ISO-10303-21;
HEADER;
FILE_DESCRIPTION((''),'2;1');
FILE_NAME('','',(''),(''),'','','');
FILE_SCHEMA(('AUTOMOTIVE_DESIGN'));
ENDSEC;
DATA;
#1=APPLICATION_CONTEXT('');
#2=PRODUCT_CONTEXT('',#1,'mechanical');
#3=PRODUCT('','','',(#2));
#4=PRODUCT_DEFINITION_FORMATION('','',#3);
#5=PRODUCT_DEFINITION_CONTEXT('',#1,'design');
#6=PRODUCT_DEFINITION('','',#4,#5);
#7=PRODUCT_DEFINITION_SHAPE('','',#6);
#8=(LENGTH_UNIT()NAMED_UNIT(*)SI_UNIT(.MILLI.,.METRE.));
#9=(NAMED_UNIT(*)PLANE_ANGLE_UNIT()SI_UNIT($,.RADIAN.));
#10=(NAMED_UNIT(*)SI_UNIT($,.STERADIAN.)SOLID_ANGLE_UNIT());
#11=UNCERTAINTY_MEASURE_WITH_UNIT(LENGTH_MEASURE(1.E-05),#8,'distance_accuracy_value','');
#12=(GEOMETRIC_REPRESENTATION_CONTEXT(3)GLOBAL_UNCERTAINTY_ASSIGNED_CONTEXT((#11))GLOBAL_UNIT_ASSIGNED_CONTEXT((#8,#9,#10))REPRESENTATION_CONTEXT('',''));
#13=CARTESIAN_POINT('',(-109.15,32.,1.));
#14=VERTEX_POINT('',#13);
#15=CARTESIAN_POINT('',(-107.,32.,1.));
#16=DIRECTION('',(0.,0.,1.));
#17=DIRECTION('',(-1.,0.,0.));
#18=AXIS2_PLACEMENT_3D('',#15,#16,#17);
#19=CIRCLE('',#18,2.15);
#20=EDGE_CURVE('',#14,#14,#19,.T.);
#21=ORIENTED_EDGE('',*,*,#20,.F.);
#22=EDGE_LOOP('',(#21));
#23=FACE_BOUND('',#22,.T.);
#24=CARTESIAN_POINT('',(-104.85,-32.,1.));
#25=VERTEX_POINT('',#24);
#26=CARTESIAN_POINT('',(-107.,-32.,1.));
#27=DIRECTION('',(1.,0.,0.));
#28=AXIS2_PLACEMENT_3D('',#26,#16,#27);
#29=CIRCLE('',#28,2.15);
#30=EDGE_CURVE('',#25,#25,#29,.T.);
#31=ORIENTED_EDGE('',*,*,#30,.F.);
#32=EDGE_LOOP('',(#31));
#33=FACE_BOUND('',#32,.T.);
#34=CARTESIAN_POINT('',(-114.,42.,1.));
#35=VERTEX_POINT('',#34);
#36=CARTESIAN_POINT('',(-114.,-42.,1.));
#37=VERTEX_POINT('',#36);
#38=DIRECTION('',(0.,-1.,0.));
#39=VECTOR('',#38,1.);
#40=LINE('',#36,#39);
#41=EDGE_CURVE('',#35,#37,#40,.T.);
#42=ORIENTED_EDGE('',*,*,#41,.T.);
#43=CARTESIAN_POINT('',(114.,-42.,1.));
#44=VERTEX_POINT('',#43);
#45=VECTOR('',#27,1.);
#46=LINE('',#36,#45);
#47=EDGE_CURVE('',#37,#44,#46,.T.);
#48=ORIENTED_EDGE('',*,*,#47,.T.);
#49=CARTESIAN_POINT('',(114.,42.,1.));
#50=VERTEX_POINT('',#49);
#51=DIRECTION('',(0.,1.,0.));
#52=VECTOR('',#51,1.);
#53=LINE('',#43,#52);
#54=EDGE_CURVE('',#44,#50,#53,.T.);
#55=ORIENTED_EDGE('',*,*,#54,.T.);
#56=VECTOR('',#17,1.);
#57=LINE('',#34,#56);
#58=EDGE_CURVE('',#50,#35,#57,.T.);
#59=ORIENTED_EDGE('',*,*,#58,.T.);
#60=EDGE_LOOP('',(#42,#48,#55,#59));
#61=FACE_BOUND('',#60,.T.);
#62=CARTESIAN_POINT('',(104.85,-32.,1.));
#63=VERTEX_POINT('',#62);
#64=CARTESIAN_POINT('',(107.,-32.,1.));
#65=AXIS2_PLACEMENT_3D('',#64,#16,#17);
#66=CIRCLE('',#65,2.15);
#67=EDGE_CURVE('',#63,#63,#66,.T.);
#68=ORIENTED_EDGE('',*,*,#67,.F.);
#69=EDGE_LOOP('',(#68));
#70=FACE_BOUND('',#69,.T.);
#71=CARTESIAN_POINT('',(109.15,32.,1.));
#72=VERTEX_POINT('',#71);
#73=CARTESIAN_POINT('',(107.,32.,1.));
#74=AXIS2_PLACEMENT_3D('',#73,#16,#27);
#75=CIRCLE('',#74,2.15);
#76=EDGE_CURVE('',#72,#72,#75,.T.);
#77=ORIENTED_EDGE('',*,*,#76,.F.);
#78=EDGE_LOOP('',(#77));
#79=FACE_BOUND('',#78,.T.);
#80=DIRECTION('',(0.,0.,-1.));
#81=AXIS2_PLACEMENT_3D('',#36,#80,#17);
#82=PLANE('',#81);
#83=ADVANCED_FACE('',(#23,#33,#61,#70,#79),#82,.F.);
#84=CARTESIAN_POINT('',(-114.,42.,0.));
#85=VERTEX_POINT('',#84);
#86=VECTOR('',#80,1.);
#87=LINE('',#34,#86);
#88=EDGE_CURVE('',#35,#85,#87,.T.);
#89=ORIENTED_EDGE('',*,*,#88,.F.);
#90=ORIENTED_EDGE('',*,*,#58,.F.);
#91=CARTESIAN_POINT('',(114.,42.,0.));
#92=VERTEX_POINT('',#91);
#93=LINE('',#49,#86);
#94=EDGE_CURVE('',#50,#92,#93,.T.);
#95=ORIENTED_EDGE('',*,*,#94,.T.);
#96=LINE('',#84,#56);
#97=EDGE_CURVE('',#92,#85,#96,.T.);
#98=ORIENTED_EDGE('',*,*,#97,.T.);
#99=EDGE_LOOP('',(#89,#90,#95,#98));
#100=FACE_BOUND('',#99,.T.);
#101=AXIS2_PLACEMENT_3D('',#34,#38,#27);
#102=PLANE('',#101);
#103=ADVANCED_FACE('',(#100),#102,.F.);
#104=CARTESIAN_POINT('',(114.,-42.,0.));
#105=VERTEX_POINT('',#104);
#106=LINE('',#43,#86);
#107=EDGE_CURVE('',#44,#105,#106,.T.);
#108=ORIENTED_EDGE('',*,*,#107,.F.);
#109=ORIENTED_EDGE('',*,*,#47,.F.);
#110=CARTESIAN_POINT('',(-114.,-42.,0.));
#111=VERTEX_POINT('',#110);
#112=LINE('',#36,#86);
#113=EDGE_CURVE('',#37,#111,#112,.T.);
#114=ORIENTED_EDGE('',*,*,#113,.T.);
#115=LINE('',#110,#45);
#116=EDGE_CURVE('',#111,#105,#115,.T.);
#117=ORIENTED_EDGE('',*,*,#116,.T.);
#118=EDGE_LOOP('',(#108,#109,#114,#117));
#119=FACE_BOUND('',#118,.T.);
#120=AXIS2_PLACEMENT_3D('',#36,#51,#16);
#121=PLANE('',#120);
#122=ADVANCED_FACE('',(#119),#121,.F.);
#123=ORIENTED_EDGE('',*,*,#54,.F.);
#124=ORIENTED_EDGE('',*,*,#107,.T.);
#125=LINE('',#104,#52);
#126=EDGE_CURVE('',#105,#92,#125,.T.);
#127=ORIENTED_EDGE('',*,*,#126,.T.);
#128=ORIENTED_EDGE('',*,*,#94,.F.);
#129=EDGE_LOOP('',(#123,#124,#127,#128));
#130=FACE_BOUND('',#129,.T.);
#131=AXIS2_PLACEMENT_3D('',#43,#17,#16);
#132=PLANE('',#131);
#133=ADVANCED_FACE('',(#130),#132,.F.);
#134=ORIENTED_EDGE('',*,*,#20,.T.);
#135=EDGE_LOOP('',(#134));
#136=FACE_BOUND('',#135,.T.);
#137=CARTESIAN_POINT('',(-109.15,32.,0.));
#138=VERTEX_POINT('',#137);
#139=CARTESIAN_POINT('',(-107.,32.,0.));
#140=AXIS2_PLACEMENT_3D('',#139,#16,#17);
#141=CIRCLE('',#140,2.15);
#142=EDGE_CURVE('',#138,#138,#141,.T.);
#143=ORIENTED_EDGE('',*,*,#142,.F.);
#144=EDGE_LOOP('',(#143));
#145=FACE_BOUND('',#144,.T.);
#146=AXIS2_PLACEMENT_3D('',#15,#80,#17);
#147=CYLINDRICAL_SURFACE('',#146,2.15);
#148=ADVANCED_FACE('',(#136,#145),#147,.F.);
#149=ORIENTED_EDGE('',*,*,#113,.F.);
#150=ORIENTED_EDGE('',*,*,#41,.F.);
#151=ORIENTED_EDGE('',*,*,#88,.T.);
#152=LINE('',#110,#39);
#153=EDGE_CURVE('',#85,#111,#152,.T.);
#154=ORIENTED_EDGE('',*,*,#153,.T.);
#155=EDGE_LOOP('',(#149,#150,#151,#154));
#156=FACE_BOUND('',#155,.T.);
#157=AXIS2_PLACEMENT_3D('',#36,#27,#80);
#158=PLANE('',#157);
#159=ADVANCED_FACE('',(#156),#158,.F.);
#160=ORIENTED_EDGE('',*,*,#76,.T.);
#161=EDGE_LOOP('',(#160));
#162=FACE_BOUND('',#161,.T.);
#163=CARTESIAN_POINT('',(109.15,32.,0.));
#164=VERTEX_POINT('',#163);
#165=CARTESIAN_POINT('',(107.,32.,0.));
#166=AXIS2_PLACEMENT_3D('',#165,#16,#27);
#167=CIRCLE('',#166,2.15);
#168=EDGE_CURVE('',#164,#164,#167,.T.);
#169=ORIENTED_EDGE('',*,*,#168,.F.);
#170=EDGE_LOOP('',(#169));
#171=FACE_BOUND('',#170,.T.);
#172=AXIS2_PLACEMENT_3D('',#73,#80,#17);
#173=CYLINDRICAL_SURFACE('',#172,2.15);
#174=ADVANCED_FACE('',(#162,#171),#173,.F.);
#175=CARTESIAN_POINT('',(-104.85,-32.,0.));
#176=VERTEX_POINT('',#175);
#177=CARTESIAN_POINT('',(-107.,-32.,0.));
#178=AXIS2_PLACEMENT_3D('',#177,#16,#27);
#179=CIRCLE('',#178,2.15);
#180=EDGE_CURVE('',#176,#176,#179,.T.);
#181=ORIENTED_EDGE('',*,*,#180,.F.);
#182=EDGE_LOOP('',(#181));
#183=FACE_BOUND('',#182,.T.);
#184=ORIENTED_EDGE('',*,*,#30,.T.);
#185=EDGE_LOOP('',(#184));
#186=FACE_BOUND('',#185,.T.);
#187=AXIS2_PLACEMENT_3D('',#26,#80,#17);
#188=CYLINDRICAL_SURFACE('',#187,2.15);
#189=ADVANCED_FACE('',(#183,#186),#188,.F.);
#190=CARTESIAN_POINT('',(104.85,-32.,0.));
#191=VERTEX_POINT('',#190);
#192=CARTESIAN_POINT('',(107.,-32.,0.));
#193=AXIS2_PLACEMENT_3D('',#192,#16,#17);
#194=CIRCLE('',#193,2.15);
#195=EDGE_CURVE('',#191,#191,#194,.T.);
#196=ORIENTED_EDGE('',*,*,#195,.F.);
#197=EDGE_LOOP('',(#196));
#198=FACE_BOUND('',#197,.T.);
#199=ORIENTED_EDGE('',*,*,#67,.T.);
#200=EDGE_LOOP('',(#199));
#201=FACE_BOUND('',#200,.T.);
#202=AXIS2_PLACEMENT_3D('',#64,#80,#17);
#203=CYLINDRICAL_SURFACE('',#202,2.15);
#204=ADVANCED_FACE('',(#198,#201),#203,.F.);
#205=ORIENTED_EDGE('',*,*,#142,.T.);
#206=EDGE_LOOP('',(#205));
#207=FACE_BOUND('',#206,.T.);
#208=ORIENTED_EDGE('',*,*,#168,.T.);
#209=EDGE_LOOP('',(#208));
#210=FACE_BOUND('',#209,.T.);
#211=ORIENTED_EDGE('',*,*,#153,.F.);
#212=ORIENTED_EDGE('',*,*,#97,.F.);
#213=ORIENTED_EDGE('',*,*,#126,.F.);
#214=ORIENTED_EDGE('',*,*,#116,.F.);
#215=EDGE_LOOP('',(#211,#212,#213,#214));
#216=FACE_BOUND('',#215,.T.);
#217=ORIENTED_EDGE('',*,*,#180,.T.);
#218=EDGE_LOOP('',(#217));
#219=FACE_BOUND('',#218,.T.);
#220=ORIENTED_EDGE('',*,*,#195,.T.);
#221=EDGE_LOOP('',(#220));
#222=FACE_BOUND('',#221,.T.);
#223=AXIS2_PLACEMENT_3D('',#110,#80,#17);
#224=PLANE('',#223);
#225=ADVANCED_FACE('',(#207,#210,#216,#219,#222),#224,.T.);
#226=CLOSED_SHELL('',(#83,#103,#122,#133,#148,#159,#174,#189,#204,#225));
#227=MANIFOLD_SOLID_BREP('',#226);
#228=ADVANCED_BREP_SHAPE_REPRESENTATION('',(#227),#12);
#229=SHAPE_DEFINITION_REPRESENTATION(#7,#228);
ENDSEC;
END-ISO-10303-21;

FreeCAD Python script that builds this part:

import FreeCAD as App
import Part
import Sketcher
from FreeCAD import Vector


def add_polygon(sketch, points):
    """Adds a closed chain of lines whose ends are joined by coincident constraints."""
    first, n = sketch.GeometryCount, len(points)
    for a, b in zip(points, points[1:] + points[:1]):
        sketch.addGeometry(Part.LineSegment(App.Vector(*a, 0), App.Vector(*b, 0)), False)
    for i in range(n):
        sketch.addConstraint(Sketcher.Constraint("Coincident", first + i, 2, first + (i + 1) % n, 1))

doc = App.newDocument("Part")
body = doc.addObject("PartDesign::Body", "Body")

# Sketch on XY plane
sketch1 = body.newObject("Sketcher::SketchObject", "Sketch")
sketch1.AttachmentSupport = (doc.getObject("XY_Plane"), [""])
sketch1.MapMode = "FlatFace"
add_polygon(sketch1, [(-114, 42), (-114, -42), (114, -42), (114, 42)])  # lines 0-3
sketch1.addGeometry(Part.Circle(Vector(-107, -32, 0), Vector(0, 0, 1), 2.15), False)  # 4
sketch1.addGeometry(Part.Circle(Vector(107, -32, 0), Vector(0, 0, 1), 2.15), False)  # 5
sketch1.addGeometry(Part.Circle(Vector(-107, 32, 0), Vector(0, 0, 1), 2.15), False)  # 6
sketch1.addGeometry(Part.Circle(Vector(107, 32, 0), Vector(0, 0, 1), 2.15), False)  # 7
sketch1.addConstraint(Sketcher.Constraint("Vertical", 0))
sketch1.addConstraint(Sketcher.Constraint("Horizontal", 1))
sketch1.addConstraint(Sketcher.Constraint("Vertical", 2))
sketch1.addConstraint(Sketcher.Constraint("Horizontal", 3))
sketch1.addConstraint(Sketcher.Constraint("Equal", 4, 5))
sketch1.addConstraint(Sketcher.Constraint("Equal", 5, 6))
sketch1.addConstraint(Sketcher.Constraint("Equal", 6, 7))
sketch1.addConstraint(Sketcher.Constraint("Symmetric", 5, 3, 6, 3, -1, 1))
sketch1.addConstraint(Sketcher.Constraint("Symmetric", 4, 3, 7, 3, -1, 1))
sketch1.addConstraint(Sketcher.Constraint("Symmetric", 0, 2, 2, 2, -1, 1))
sketch1.addConstraint(Sketcher.Constraint("Symmetric", 4, 3, 5, 3, -2))
sketch1.addConstraint(Sketcher.Constraint("Diameter", 4, 4.3))
sketch1.addConstraint(Sketcher.Constraint("DistanceX", 1, 1, 1, 2, 228.0))
sketch1.addConstraint(Sketcher.Constraint("DistanceY", 0, 2, 0, 1, 84.0))
sketch1.addConstraint(Sketcher.Constraint("DistanceX", 4, 3, -1, 1, 107.0))
sketch1.addConstraint(Sketcher.Constraint("DistanceY", 4, 3, -1, 1, 32.0))
pad1 = body.newObject("PartDesign::Pad", "Pad")
pad1.Profile = sketch1
pad1.Length = 1

doc.recompute()
